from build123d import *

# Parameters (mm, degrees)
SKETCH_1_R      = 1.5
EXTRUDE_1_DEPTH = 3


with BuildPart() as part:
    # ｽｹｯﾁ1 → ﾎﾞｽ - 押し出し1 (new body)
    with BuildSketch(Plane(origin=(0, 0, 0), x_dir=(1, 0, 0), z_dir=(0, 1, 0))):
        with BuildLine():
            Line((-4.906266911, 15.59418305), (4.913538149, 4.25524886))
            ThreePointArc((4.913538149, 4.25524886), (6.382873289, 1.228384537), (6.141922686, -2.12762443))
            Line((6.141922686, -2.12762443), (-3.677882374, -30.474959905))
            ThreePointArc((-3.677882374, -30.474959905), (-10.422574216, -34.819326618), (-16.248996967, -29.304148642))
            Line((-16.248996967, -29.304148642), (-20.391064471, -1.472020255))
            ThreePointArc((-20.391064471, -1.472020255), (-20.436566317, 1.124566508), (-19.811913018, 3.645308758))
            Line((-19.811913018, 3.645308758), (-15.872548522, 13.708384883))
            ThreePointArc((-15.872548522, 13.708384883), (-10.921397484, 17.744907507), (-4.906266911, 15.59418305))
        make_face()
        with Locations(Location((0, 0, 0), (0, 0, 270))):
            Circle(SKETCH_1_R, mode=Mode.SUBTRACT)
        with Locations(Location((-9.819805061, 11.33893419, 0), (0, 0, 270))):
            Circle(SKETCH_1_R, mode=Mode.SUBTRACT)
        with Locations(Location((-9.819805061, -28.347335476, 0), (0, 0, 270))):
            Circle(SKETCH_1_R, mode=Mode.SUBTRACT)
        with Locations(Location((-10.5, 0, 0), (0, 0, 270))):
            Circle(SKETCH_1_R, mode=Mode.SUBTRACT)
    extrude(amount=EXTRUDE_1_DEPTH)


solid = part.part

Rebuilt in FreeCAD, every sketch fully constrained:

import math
import FreeCAD as App
import Part
import Sketcher

doc = App.newDocument("Part")
body = doc.addObject("PartDesign::Body", "Body")

# Sketch on XZ plane
sketch1 = body.newObject("Sketcher::SketchObject", "Sketch")
sketch1.AttachmentSupport = (doc.getObject("XZ_Plane"), [""])
sketch1.MapMode = "FlatFace"
sketch1.addGeometry(Part.LineSegment(App.Vector(4.913538, -4.255249, 0), App.Vector(-4.906267, -15.594183, 0)), False)
sketch1.addGeometry(Part.ArcOfCircle(Part.Circle(App.Vector(-9.819805, -11.338934, 0), App.Vector(0, 0, 1), 6.5), math.radians(-158.621285), math.radians(-40.893395)), False)
sketch1.addGeometry(Part.LineSegment(App.Vector(-15.872549, -13.708385, 0), App.Vector(-19.811913, -3.645309, 0)), False)
sketch1.addGeometry(Part.ArcOfCircle(Part.Circle(App.Vector(-10.5, 0, 0), App.Vector(0, 0, 1), 10), math.radians(171.535186), math.radians(201.378715)), False)
sketch1.addGeometry(Part.LineSegment(App.Vector(-20.391064, 1.47202, 0), App.Vector(-16.248997, 29.304149, 0)), False)
sketch1.addGeometry(Part.ArcOfCircle(Part.Circle(App.Vector(-9.819805, 28.347335, 0), App.Vector(0, 0, 1), 6.5), math.radians(19.106605), math.radians(171.535186)), False)
sketch1.addGeometry(Part.LineSegment(App.Vector(-3.677882, 30.47496, 0), App.Vector(6.141923, 2.127624, 0)), False)
sketch1.addGeometry(Part.ArcOfCircle(Part.Circle(App.Vector(0, 0, 0), App.Vector(0, 0, 1), 6.5), math.radians(-40.893395), math.radians(19.106605)), False)
sketch1.addGeometry(Part.Circle(App.Vector(-9.819805, 28.347335, 0), App.Vector(0, 0, 1), 1.5), False)
sketch1.addGeometry(Part.Circle(App.Vector(0, 0, 0), App.Vector(0, 0, 1), 1.5), False)
sketch1.addGeometry(Part.Circle(App.Vector(-10.5, 0, 0), App.Vector(0, 0, 1), 1.5), False)
sketch1.addGeometry(Part.Circle(App.Vector(-9.819805, -11.338934, 0), App.Vector(0, 0, 1), 1.5), False)
sketch1.addConstraint(Sketcher.Constraint("Tangent", 0, 2, 1, 2))
sketch1.addConstraint(Sketcher.Constraint("Tangent", 1, 1, 2, 1))
sketch1.addConstraint(Sketcher.Constraint("Tangent", 2, 2, 3, 2))
sketch1.addConstraint(Sketcher.Constraint("Tangent", 3, 1, 4, 1))
sketch1.addConstraint(Sketcher.Constraint("Tangent", 4, 2, 5, 2))
sketch1.addConstraint(Sketcher.Constraint("Tangent", 5, 1, 6, 1))
sketch1.addConstraint(Sketcher.Constraint("Tangent", 6, 2, 7, 2))
sketch1.addConstraint(Sketcher.Constraint("Tangent", 7, 1, 0, 1))
sketch1.addConstraint(Sketcher.Constraint("Coincident", 7, 3, -1, 1))
sketch1.addConstraint(Sketcher.Constraint("Coincident", 9, 3, -1, 1))
sketch1.addConstraint(Sketcher.Constraint("Coincident", 8, 3, 5, 3))
sketch1.addConstraint(Sketcher.Constraint("Coincident", 10, 3, 3, 3))
sketch1.addConstraint(Sketcher.Constraint("Coincident", 11, 3, 1, 3))
sketch1.addConstraint(Sketcher.Constraint("Equal", 1, 5))
sketch1.addConstraint(Sketcher.Constraint("Equal", 5, 7))
sketch1.addConstraint(Sketcher.Constraint("Equal", 8, 9))
sketch1.addConstraint(Sketcher.Constraint("Equal", 9, 10))
sketch1.addConstraint(Sketcher.Constraint("Equal", 10, 11))
sketch1.addConstraint(Sketcher.Constraint("PointOnObject", 3, 3, -1))
sketch1.addConstraint(Sketcher.Constraint("Vertical", 1, 3, 5, 3))
sketch1.addConstraint(Sketcher.Constraint("Diameter", 8, 3.0))
sketch1.addConstraint(Sketcher.Constraint("Radius", 3, 10.0))
sketch1.addConstraint(Sketcher.Constraint("Radius", 1, 6.5))
sketch1.addConstraint(Sketcher.Constraint("Distance", 0, 15.0))
sketch1.addConstraint(Sketcher.Constraint("Distance", 6, 30.0))
sketch1.addConstraint(Sketcher.Constraint("DistanceX", 3, 3, -1, 1, 10.5))
sketch1.addConstraint(Sketcher.Constraint("DistanceY", 0, 2, 1, 1, 1.885798))
pad1 = body.newObject("PartDesign::Pad", "Pad")
pad1.Profile = sketch1
pad1.Length = 3
pad1.Reversed = True

doc.recompute()
